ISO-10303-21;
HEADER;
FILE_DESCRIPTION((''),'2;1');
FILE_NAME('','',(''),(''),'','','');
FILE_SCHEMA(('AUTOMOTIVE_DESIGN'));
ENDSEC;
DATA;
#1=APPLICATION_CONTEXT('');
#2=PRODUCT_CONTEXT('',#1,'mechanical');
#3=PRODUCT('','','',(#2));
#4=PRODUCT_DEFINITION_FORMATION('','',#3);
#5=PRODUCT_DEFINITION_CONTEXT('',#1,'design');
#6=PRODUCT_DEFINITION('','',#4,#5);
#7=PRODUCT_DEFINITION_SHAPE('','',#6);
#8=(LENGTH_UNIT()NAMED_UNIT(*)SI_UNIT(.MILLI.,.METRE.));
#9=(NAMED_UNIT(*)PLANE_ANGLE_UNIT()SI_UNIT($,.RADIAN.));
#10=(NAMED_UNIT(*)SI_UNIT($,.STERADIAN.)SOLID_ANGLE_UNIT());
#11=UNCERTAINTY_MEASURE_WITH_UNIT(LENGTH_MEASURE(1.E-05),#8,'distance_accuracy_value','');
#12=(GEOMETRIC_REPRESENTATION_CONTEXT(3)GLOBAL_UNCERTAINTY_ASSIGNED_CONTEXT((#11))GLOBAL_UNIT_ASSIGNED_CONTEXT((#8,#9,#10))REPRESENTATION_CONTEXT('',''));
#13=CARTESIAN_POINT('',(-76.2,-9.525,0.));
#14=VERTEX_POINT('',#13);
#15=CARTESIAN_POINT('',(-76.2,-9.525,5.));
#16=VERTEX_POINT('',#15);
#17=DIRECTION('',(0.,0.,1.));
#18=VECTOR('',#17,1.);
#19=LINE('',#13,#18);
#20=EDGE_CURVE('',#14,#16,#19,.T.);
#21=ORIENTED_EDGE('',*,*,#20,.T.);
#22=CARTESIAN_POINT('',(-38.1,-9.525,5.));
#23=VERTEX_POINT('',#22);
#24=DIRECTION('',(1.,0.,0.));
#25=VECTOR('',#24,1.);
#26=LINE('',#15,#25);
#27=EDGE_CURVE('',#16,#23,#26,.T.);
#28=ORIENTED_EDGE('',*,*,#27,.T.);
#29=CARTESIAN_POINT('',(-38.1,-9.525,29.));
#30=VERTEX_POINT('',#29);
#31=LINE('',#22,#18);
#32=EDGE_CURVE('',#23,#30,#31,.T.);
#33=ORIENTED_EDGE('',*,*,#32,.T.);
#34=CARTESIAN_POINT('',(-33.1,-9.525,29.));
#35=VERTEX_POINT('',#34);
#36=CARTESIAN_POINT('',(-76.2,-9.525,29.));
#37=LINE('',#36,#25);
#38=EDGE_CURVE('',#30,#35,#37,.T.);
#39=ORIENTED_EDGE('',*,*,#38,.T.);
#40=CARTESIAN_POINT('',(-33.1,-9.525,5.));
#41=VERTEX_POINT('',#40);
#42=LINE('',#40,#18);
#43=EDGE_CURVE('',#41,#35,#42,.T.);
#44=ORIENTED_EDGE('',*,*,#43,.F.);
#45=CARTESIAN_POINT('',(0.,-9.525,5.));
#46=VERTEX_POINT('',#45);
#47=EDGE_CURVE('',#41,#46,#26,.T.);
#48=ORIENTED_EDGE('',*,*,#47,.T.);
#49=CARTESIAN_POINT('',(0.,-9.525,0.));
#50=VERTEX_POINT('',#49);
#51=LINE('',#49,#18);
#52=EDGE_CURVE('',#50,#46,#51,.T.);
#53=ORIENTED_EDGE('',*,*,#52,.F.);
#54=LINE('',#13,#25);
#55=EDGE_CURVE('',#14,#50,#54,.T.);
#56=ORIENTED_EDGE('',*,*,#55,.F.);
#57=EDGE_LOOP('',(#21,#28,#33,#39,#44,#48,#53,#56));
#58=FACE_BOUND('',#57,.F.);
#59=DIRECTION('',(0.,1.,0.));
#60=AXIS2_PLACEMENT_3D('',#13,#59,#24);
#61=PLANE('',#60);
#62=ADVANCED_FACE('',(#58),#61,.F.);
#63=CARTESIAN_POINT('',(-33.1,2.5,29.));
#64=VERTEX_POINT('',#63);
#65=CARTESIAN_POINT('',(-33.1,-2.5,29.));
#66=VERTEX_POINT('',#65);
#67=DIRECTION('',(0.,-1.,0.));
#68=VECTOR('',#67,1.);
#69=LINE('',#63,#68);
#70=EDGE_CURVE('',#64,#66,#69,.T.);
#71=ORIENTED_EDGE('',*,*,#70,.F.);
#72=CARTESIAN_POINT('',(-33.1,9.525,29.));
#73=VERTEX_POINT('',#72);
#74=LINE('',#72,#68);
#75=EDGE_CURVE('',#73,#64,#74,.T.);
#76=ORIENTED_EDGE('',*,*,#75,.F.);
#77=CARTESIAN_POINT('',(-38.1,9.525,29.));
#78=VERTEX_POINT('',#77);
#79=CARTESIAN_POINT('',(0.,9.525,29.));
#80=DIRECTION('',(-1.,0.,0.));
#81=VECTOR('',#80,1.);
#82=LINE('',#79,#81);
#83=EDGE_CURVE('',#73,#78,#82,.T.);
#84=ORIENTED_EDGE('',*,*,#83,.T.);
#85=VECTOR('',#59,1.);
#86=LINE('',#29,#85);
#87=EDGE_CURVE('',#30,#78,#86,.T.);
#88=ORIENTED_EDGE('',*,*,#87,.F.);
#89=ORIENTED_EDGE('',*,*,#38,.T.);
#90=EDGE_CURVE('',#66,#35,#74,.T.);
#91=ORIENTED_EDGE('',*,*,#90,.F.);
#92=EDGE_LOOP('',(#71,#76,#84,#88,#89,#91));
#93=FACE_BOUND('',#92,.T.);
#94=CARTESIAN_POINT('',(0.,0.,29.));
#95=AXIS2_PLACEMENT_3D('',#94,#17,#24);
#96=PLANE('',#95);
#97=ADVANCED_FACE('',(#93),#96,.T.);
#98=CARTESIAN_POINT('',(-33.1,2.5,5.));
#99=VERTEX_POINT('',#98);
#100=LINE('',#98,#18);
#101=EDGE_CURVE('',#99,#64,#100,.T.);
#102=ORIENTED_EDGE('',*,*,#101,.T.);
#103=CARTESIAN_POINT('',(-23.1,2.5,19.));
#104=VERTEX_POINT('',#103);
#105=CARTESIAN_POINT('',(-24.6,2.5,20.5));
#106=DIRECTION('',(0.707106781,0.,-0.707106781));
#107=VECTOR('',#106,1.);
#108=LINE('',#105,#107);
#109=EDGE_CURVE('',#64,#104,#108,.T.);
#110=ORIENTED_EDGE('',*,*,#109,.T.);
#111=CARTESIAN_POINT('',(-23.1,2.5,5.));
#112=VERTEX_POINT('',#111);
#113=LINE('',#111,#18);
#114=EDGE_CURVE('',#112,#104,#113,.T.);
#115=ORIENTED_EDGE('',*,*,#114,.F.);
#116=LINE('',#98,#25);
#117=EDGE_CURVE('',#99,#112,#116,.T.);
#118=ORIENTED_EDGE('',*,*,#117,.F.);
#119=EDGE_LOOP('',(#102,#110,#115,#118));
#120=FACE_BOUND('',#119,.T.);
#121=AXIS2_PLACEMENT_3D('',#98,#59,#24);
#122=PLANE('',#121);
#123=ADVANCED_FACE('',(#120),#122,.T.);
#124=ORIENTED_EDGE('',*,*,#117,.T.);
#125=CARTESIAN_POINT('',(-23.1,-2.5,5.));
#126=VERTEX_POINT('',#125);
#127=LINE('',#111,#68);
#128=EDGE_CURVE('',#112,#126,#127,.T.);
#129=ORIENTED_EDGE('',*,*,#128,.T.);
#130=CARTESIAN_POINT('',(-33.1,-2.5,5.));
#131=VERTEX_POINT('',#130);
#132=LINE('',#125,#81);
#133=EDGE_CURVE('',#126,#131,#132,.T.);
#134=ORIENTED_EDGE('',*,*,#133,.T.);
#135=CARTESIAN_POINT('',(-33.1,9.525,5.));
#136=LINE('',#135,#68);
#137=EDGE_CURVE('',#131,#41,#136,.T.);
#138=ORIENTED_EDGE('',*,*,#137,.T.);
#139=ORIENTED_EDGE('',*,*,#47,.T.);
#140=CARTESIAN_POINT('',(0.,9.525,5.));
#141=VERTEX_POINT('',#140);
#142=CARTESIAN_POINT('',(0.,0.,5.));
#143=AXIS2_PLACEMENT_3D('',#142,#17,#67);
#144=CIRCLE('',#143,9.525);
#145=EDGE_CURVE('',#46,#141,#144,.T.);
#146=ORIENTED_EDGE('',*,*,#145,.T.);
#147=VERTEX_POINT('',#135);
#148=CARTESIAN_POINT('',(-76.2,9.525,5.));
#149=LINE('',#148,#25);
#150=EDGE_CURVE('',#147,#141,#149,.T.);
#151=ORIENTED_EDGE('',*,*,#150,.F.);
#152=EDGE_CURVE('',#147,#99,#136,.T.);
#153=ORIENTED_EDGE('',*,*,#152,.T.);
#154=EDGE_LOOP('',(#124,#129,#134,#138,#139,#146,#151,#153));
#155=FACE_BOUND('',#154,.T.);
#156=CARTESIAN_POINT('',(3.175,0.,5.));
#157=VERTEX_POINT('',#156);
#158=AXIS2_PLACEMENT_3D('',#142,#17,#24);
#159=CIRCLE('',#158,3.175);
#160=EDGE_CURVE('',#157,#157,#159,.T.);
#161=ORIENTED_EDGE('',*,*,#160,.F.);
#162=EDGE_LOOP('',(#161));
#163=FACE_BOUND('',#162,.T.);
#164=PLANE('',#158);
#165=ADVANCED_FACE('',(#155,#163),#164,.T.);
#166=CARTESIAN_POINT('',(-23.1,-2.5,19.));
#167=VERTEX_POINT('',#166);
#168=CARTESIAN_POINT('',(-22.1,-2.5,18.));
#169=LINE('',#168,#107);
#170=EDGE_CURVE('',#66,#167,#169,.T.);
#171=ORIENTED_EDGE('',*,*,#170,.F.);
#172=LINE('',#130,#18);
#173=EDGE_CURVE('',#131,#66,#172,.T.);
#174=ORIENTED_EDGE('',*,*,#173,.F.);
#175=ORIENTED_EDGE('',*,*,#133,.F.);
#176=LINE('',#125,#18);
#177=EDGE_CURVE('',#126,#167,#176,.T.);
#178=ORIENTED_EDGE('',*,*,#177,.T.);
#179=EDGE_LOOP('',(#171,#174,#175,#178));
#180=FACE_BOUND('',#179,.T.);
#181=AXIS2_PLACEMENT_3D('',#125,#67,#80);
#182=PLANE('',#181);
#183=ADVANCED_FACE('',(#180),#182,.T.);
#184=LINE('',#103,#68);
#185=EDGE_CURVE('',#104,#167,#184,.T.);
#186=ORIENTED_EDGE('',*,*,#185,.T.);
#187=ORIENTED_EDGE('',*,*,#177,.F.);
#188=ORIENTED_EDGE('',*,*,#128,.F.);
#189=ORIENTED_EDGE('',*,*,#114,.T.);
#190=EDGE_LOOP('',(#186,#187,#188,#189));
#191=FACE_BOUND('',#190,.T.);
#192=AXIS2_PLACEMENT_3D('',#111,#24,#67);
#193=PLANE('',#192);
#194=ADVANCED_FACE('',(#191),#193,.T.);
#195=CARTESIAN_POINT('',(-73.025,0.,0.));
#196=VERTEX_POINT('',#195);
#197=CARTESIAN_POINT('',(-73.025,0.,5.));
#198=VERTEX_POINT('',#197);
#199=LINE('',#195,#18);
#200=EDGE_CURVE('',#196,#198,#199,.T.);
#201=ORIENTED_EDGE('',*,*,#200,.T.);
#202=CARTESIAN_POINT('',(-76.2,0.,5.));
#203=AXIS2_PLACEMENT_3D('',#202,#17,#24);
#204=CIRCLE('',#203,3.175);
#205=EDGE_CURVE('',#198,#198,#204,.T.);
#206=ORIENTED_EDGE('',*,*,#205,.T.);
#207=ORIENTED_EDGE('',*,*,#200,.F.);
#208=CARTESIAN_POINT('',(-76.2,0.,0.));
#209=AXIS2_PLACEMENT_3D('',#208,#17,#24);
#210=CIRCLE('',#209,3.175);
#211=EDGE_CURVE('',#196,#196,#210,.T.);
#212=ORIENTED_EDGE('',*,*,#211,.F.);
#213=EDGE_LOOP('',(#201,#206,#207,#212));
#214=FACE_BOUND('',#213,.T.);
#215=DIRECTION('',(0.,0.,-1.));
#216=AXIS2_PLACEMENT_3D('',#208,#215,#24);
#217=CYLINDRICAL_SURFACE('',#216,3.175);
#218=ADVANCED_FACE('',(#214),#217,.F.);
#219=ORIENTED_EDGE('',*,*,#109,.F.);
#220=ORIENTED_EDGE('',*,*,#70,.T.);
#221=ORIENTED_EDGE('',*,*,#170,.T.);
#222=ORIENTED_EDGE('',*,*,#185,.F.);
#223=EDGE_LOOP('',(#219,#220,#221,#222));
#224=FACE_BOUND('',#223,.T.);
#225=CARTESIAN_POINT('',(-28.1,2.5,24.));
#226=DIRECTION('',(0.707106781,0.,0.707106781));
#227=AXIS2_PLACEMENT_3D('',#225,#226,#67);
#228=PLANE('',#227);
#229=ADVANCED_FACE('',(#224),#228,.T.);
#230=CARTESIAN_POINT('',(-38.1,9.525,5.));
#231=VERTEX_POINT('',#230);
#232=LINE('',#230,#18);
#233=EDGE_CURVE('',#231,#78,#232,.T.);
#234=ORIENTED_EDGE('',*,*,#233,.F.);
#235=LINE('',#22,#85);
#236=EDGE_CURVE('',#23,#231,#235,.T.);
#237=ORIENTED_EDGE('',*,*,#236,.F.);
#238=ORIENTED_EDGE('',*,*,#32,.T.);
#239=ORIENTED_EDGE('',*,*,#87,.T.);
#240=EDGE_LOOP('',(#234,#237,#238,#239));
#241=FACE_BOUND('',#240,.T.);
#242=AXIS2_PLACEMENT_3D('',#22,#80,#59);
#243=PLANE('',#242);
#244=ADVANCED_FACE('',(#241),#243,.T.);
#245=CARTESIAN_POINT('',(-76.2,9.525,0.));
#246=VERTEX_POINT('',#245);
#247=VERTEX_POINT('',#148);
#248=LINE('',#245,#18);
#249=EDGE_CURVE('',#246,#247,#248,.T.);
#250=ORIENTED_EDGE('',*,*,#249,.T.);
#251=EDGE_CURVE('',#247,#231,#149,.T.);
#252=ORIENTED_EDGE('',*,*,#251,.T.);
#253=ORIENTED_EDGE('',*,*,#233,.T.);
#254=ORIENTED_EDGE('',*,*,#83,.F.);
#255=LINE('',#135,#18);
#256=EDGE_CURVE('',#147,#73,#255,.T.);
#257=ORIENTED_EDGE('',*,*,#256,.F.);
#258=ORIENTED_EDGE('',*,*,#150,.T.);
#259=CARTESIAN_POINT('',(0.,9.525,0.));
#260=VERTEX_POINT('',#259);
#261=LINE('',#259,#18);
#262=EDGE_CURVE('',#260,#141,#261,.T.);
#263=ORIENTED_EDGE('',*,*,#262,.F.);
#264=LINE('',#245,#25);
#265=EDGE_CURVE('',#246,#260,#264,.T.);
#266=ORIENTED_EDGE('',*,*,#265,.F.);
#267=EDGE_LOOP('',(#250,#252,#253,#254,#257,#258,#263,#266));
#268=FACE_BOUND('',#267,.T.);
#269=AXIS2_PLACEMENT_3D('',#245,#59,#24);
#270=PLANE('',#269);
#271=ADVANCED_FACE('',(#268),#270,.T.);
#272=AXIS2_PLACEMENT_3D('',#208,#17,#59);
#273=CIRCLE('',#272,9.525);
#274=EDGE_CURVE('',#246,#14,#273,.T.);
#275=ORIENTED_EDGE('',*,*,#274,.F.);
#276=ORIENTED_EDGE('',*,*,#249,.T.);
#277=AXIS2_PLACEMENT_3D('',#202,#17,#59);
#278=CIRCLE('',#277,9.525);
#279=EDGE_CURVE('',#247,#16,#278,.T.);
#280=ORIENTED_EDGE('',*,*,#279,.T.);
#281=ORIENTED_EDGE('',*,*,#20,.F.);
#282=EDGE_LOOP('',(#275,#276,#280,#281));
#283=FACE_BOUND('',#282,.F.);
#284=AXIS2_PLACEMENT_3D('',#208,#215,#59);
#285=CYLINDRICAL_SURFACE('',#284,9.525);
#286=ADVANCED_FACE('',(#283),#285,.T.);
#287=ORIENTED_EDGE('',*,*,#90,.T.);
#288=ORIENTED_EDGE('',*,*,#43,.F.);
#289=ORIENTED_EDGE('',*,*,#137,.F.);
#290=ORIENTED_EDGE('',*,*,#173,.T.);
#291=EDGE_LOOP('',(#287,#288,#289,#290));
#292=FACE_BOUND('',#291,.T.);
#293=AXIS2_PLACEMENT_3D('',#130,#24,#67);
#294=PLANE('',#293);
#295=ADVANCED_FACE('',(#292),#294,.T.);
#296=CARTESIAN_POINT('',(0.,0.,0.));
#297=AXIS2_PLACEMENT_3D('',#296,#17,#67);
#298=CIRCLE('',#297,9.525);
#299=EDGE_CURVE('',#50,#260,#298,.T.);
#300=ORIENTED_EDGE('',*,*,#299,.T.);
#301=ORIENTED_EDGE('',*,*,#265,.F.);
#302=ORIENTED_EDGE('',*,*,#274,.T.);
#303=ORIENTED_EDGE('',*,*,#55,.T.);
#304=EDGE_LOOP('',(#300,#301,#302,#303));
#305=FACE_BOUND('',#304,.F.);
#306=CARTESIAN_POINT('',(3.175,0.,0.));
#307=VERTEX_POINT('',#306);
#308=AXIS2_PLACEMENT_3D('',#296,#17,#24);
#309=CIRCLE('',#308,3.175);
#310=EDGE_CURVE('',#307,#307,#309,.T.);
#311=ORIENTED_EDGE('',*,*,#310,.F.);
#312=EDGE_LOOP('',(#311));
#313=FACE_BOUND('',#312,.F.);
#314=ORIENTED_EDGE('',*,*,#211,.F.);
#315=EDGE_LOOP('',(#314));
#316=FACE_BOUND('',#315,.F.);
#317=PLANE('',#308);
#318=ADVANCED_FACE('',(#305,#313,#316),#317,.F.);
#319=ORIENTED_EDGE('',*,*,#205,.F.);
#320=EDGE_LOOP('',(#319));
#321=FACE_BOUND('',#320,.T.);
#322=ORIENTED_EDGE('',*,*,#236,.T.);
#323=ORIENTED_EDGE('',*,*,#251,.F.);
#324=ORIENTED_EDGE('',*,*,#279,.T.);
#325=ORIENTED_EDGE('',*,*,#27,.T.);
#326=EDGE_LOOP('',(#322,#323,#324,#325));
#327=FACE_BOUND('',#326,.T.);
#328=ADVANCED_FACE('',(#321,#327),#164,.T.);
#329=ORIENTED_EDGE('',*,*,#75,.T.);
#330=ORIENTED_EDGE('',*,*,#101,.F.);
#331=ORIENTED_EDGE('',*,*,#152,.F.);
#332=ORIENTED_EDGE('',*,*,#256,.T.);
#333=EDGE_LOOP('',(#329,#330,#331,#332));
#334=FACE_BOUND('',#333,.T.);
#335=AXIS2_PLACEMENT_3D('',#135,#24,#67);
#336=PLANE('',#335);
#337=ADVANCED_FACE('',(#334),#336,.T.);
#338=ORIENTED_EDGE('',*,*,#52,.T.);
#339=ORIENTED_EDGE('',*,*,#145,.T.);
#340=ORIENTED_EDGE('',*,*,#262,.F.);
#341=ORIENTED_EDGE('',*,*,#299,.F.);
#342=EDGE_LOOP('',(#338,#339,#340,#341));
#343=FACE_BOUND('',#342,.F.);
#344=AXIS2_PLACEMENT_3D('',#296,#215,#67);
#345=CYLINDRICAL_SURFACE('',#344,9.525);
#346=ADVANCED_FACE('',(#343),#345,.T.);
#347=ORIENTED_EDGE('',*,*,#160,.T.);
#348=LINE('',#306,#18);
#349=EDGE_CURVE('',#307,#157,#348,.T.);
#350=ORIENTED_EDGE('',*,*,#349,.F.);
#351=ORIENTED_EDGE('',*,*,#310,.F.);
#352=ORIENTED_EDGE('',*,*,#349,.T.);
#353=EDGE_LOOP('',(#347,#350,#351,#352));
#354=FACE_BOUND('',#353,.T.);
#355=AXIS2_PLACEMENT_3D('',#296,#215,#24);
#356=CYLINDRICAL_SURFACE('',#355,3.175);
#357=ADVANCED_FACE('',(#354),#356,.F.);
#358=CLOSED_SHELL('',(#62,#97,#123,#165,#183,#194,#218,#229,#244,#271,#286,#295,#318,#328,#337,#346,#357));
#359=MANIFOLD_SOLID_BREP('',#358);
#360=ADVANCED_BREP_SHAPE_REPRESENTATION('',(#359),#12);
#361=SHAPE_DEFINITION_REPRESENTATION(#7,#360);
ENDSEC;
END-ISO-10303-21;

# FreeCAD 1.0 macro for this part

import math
import FreeCAD as App
import Part
import Sketcher

V = App.Vector
Q = App.Units.Quantity


def edges_at(feature, points):
    """Names of the edges that pass closest to the given points."""
    edges = feature.Shape.Edges
    near = lambda p: min(range(len(edges)), key=lambda i: edges[i].distToShape(Part.Vertex(*p))[0])
    return sorted({f"Edge{near(p) + 1}" for p in points})

doc = App.newDocument("Part")
body = doc.addObject("PartDesign::Body", "Body")

# Sketch on XY plane
sketch1 = body.newObject("Sketcher::SketchObject", "Sketch")
sketch1.AttachmentSupport = (doc.getObject("XY_Plane"), [""])
sketch1.MapMode = "FlatFace"
sketch1.addGeometry(Part.LineSegment(V(0, 9.5, 0), V(-76.2, 9.5, 0)), False)
sketch1.addGeometry(Part.ArcOfCircle(Part.Circle(V(-76.2, 0, 0), V(0, 0, 1), 9.5), math.radians(90), math.radians(270)), False)
sketch1.addGeometry(Part.LineSegment(V(-76.2, -9.5, 0), V(0, -9.5, 0)), False)
sketch1.addGeometry(Part.ArcOfCircle(Part.Circle(V(0, 0, 0), V(0, 0, 1), 9.5), math.radians(-90), math.radians(90)), False)
sketch1.addGeometry(Part.Circle(V(-76.2, 0, 0), V(0, 0, 1), 3.2), False)
sketch1.addGeometry(Part.Circle(V(0, 0, 0), V(0, 0, 1), 3.2), False)
sketch1.addConstraint(Sketcher.Constraint("Tangent", 0, 2, 1, 1))
sketch1.addConstraint(Sketcher.Constraint("Tangent", 1, 2, 2, 1))
sketch1.addConstraint(Sketcher.Constraint("Tangent", 2, 2, 3, 1))
sketch1.addConstraint(Sketcher.Constraint("Tangent", 3, 2, 0, 1))
sketch1.addConstraint(Sketcher.Constraint("Horizontal", 0))
sketch1.addConstraint(Sketcher.Constraint("Horizontal", 2))
sketch1.addConstraint(Sketcher.Constraint("Coincident", 3, 3, -1, 1))
sketch1.addConstraint(Sketcher.Constraint("Coincident", 5, 3, -1, 1))
sketch1.addConstraint(Sketcher.Constraint("Coincident", 4, 3, 1, 3))
sketch1.addConstraint(Sketcher.Constraint("Equal", 4, 5))
sketch1.addConstraint(Sketcher.Constraint("Diameter", 4, Q("0.25 in")))
sketch1.addConstraint(Sketcher.Constraint("DistanceX", 0, 2, 0, 1, Q("3 in")))
sketch1.addConstraint(Sketcher.Constraint("Radius", 1, Q("0.375 in")))
pad1 = body.newObject("PartDesign::Pad", "Pad")
pad1.Profile = sketch1
pad1.Length = 5

# Sketch on XY plane
sketch2 = body.newObject("Sketcher::SketchObject", "Sketch001")
sketch2.AttachmentSupport = (doc.getObject("XY_Plane"), [""])
sketch2.MapMode = "FlatFace"
sketch2.AttachmentOffset = App.Placement(V(0, 0, 5), App.Rotation())
sketch2.addGeometry(Part.LineSegment(V(-33, 2, 0), V(-33, 10, 0)), False)
sketch2.addGeometry(Part.LineSegment(V(-33, 10, 0), V(-38, 10, 0)), False)
sketch2.addGeometry(Part.LineSegment(V(-38, 10, 0), V(-38, -10, 0)), False)
sketch2.addGeometry(Part.LineSegment(V(-38, -10, 0), V(-33, -10, 0)), False)
sketch2.addGeometry(Part.LineSegment(V(-33, -10, 0), V(-33, -2, 0)), False)
sketch2.addGeometry(Part.LineSegment(V(-33, -2, 0), V(-23, -2, 0)), False)
sketch2.addGeometry(Part.LineSegment(V(-23, -2, 0), V(-23, 2, 0)), False)
sketch2.addGeometry(Part.LineSegment(V(-23, 2, 0), V(-33, 2, 0)), False)
sketch2.addConstraint(Sketcher.Constraint("Coincident", 0, 2, 1, 1))
sketch2.addConstraint(Sketcher.Constraint("Coincident", 1, 2, 2, 1))
sketch2.addConstraint(Sketcher.Constraint("Coincident", 2, 2, 3, 1))
sketch2.addConstraint(Sketcher.Constraint("Coincident", 3, 2, 4, 1))
sketch2.addConstraint(Sketcher.Constraint("Coincident", 4, 2, 5, 1))
sketch2.addConstraint(Sketcher.Constraint("Coincident", 5, 2, 6, 1))
sketch2.addConstraint(Sketcher.Constraint("Coincident", 6, 2, 7, 1))
sketch2.addConstraint(Sketcher.Constraint("Coincident", 7, 2, 0, 1))
sketch2.addConstraint(Sketcher.Constraint("Vertical", 0))
sketch2.addConstraint(Sketcher.Constraint("Horizontal", 1))
sketch2.addConstraint(Sketcher.Constraint("Vertical", 2))
sketch2.addConstraint(Sketcher.Constraint("Horizontal", 3))
sketch2.addConstraint(Sketcher.Constraint("Vertical", 4))
sketch2.addConstraint(Sketcher.Constraint("Horizontal", 5))
sketch2.addConstraint(Sketcher.Constraint("Vertical", 6))
sketch2.addConstraint(Sketcher.Constraint("Horizontal", 7))
sketch2.addConstraint(Sketcher.Constraint("Symmetric", 0, 2, 3, 2, -1))
sketch2.addConstraint(Sketcher.Constraint("Equal", 0, 4))
sketch2.addConstraint(Sketcher.Constraint("Equal", 3, 6))
sketch2.addConstraint(Sketcher.Constraint("DistanceX", 5, 1, 5, 2, Q("0.3937 in")))
sketch2.addConstraint(Sketcher.Constraint("DistanceX", 1, 2, 1, 1, Q("5 mm")))
sketch2.addConstraint(Sketcher.Constraint("DistanceY", 2, 2, 2, 1, Q("0.75 in")))
sketch2.addConstraint(Sketcher.Constraint("DistanceX", 1, 2, -1, 1, Q("1.5 in")))
pad2 = body.newObject("PartDesign::Pad", "Pad001")
pad2.Profile = sketch2
pad2.Length = 24
doc.recompute()

chamfer = body.newObject("PartDesign::Chamfer", "Chamfer")
chamfer.Base = (pad2, edges_at(pad2, [(-23.1, 0, 29)]))
chamfer.Size = Q("0.3937008 in")

doc.recompute()
